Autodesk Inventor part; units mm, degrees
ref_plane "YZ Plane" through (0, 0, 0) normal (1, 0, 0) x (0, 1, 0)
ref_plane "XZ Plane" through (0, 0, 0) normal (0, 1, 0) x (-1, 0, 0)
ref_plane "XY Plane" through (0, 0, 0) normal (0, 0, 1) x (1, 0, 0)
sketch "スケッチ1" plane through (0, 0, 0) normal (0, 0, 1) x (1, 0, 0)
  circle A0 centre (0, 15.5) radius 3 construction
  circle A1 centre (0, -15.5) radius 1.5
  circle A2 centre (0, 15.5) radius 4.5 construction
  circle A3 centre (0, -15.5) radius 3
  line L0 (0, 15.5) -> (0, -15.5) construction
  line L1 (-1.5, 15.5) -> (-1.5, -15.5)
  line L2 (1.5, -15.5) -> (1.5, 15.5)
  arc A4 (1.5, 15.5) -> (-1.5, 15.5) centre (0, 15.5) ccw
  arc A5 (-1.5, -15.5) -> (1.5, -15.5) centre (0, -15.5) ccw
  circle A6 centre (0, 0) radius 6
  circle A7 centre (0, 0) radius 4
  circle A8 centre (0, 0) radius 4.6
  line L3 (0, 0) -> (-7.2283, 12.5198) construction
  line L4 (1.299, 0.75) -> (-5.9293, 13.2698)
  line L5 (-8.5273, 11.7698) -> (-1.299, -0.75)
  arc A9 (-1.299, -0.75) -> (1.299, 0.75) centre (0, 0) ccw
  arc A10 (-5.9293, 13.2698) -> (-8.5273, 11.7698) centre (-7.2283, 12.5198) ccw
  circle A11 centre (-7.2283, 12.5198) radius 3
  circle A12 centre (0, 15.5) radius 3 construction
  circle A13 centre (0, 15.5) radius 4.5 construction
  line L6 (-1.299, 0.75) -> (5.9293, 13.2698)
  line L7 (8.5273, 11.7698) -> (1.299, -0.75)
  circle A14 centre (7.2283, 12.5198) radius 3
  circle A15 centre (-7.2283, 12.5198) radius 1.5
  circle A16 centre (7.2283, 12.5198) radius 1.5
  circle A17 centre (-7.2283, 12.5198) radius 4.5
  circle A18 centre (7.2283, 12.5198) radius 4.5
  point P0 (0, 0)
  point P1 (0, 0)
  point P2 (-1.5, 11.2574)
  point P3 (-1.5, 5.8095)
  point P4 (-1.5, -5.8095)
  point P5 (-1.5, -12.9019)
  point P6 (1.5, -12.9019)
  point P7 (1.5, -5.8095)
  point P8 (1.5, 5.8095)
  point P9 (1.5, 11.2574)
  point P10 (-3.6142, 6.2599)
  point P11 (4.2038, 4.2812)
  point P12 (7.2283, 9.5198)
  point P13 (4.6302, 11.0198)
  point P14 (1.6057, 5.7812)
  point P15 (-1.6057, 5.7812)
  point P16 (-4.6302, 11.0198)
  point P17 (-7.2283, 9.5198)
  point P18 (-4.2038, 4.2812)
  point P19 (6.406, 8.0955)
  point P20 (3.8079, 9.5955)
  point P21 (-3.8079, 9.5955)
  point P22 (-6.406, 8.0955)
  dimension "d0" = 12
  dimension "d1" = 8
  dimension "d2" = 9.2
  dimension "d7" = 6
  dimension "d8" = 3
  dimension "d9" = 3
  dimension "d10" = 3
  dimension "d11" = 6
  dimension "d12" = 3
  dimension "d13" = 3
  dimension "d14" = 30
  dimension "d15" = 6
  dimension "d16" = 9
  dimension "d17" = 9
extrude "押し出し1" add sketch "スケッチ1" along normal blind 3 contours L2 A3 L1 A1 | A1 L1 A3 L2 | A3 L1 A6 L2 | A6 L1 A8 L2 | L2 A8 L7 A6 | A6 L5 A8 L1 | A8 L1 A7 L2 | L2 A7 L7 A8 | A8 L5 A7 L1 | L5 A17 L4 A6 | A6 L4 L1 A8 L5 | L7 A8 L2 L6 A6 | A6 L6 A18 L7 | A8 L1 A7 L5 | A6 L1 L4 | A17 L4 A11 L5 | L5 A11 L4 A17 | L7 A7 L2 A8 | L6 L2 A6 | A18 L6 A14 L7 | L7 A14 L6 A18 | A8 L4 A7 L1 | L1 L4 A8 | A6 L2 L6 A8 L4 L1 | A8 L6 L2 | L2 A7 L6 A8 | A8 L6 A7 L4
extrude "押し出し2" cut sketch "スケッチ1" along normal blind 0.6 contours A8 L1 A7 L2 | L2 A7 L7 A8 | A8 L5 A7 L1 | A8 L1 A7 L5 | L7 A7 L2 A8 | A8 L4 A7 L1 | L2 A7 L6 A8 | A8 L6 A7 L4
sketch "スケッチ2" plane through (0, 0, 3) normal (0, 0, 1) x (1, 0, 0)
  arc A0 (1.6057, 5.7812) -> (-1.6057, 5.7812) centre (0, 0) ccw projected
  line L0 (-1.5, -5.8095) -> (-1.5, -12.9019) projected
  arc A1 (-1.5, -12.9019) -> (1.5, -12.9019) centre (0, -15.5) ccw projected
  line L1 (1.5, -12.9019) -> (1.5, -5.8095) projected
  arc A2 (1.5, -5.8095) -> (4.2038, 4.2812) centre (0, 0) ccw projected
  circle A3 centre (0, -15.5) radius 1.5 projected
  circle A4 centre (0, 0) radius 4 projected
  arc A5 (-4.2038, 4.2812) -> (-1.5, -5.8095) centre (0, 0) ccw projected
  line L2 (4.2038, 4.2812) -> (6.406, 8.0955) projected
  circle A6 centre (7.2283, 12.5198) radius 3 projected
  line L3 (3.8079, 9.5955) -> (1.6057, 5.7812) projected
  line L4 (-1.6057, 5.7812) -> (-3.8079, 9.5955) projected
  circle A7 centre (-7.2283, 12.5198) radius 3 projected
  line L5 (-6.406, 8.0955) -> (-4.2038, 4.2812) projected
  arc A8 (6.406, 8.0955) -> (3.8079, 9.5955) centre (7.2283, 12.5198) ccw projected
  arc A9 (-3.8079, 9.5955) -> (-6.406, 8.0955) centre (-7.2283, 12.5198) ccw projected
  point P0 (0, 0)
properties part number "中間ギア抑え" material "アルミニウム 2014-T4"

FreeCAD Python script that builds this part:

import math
import FreeCAD as App
import Part
import Sketcher
from FreeCAD import Vector
Q = App.Units.Quantity

doc = App.newDocument("Part")
body = doc.addObject("PartDesign::Body", "Body")

sketch1 = doc.addObject("Sketcher::SketchObject", "Sketch")
body.addObject(sketch1)
sketch1.AttachmentSupport = (doc.XY_Plane, [""])
sketch1.MapMode = "FlatFace"
sketch1.addGeometry(Part.LineSegment(Vector(1.5, -12.9, 0), Vector(1.5, -5.8, 0)), False)
sketch1.addGeometry(Part.ArcOfCircle(Part.Circle(Vector(0, 0, 0), Vector(0, 0, 1), 6), math.radians(-76), math.radians(46)), False)
sketch1.addGeometry(Part.LineSegment(Vector(4.2, 4.3, 0), Vector(6.4, 8.1, 0)), False)
sketch1.addGeometry(Part.ArcOfCircle(Part.Circle(Vector(7.2, 12.5, 0), Vector(0, 0, 1), 4.5), math.radians(-101), math.radians(221)), False)
sketch1.addGeometry(Part.LineSegment(Vector(3.8, 9.6, 0), Vector(1.6, 5.8, 0)), False)
sketch1.addGeometry(Part.ArcOfCircle(Part.Circle(Vector(0, 0, 0), Vector(0, 0, 1), 6), math.radians(74), math.radians(106)), False)
sketch1.addGeometry(Part.LineSegment(Vector(-1.6, 5.8, 0), Vector(-3.8, 9.6, 0)), False)
sketch1.addGeometry(Part.ArcOfCircle(Part.Circle(Vector(-7.2, 12.5, 0), Vector(0, 0, 1), 4.5), math.radians(-41), math.radians(281)), False)
sketch1.addGeometry(Part.LineSegment(Vector(-6.4, 8.1, 0), Vector(-4.2, 4.3, 0)), False)
sketch1.addGeometry(Part.ArcOfCircle(Part.Circle(Vector(0, 0, 0), Vector(0, 0, 1), 6), math.radians(134), math.radians(256)), False)
sketch1.addGeometry(Part.LineSegment(Vector(-1.5, -5.8, 0), Vector(-1.5, -12.9, 0)), False)
sketch1.addGeometry(Part.ArcOfCircle(Part.Circle(Vector(0, -15.5, 0), Vector(0, 0, 1), 3), math.radians(120), math.radians(420)), False)
sketch1.addGeometry(Part.Circle(Vector(0, -15.5, 0), Vector(0, 0, 1), 1.5), False)
sketch1.addGeometry(Part.Circle(Vector(0, 0, 0), Vector(0, 0, 1), 4), False)
sketch1.addGeometry(Part.Circle(Vector(7.2, 12.5, 0), Vector(0, 0, 1), 3), False)
sketch1.addGeometry(Part.Circle(Vector(-7.2, 12.5, 0), Vector(0, 0, 1), 3), False)
sketch1.addConstraint(Sketcher.Constraint("Coincident", 0, 2, 1, 1))
sketch1.addConstraint(Sketcher.Constraint("Coincident", 1, 2, 2, 1))
sketch1.addConstraint(Sketcher.Constraint("Coincident", 2, 2, 3, 1))
sketch1.addConstraint(Sketcher.Constraint("Coincident", 3, 2, 4, 1))
sketch1.addConstraint(Sketcher.Constraint("Coincident", 4, 2, 5, 1))
sketch1.addConstraint(Sketcher.Constraint("Coincident", 5, 2, 6, 1))
sketch1.addConstraint(Sketcher.Constraint("Coincident", 6, 2, 7, 1))
sketch1.addConstraint(Sketcher.Constraint("Coincident", 7, 2, 8, 1))
sketch1.addConstraint(Sketcher.Constraint("Coincident", 8, 2, 9, 1))
sketch1.addConstraint(Sketcher.Constraint("Coincident", 9, 2, 10, 1))
sketch1.addConstraint(Sketcher.Constraint("Coincident", 10, 2, 11, 1))
sketch1.addConstraint(Sketcher.Constraint("Coincident", 11, 2, 0, 1))
sketch1.addConstraint(Sketcher.Constraint("Vertical", 0))
sketch1.addConstraint(Sketcher.Constraint("Vertical", 10))
sketch1.addConstraint(Sketcher.Constraint("Coincident", 1, 3, -1, 1))
sketch1.addConstraint(Sketcher.Constraint("Coincident", 5, 3, -1, 1))
sketch1.addConstraint(Sketcher.Constraint("Coincident", 9, 3, -1, 1))
sketch1.addConstraint(Sketcher.Constraint("Coincident", 13, 3, -1, 1))
sketch1.addConstraint(Sketcher.Constraint("Coincident", 12, 3, 11, 3))
sketch1.addConstraint(Sketcher.Constraint("Coincident", 14, 3, 3, 3))
sketch1.addConstraint(Sketcher.Constraint("Coincident", 15, 3, 7, 3))
sketch1.addConstraint(Sketcher.Constraint("Equal", 1, 5))
sketch1.addConstraint(Sketcher.Constraint("Equal", 3, 7))
sketch1.addConstraint(Sketcher.Constraint("Equal", 5, 9))
sketch1.addConstraint(Sketcher.Constraint("Equal", 11, 14))
sketch1.addConstraint(Sketcher.Constraint("Equal", 14, 15))
sketch1.addConstraint(Sketcher.Constraint("Symmetric", 3, 3, 7, 3, -2))
sketch1.addConstraint(Sketcher.Constraint("Symmetric", 10, 2, 11, 2, -2))
sketch1.addConstraint(Sketcher.Constraint("Parallel", 2, 4))
sketch1.addConstraint(Sketcher.Constraint("Parallel", 6, 8))
sketch1.addConstraint(Sketcher.Constraint("Horizontal", 4, 2, 5, 2))
sketch1.addConstraint(Sketcher.Constraint("Horizontal", 3, 2, 6, 2))
sketch1.addConstraint(Sketcher.Constraint("Horizontal", 2, 2, 7, 2))
sketch1.addConstraint(Sketcher.Constraint("Equal", 2, 4))
sketch1.addConstraint(Sketcher.Constraint("Diameter", 12, 3.0))
sketch1.addConstraint(Sketcher.Constraint("Diameter", 13, 8.0))
sketch1.addConstraint(Sketcher.Constraint("Diameter", 14, 6.0))
sketch1.addConstraint(Sketcher.Constraint("Radius", 1, 6.0))
sketch1.addConstraint(Sketcher.Constraint("Radius", 3, 4.5))
sketch1.addConstraint(Sketcher.Constraint("DistanceX", 9, 2, 0, 2, 3.0))
sketch1.addConstraint(Sketcher.Constraint("Angle", 2, Q("60 deg")))
sketch1.addConstraint(Sketcher.Constraint("DistanceY", 11, 3, -1, 1, 15.5))
sketch1.addConstraint(Sketcher.Constraint("DistanceY", 2, 2, 3, 2, 1.5))
sketch1.addConstraint(Sketcher.Constraint("DistanceX", -1, 1, 2, 2, 6.406))
sketch1.addConstraint(Sketcher.Constraint("DistanceX", -1, 1, 3, 2, 3.808))
pad1 = doc.addObject("PartDesign::Pad", "Pad")
body.addObject(pad1)
pad1.Profile = sketch1
pad1.Length = 3

sketch2 = doc.addObject("Sketcher::SketchObject", "Sketch001")
body.addObject(sketch2)
sketch2.AttachmentSupport = (doc.XY_Plane, [""])
sketch2.MapMode = "FlatFace"
sketch2.addGeometry(Part.Circle(Vector(0, 0, 0), Vector(0, 0, 1), 4.6), False)
sketch2.addGeometry(Part.Circle(Vector(0, 0, 0), Vector(0, 0, 1), 4), False)
sketch2.addConstraint(Sketcher.Constraint("Coincident", 0, 3, -1, 1))
sketch2.addConstraint(Sketcher.Constraint("Coincident", 1, 3, -1, 1))
sketch2.addConstraint(Sketcher.Constraint("Diameter", 1, 8.0))
sketch2.addConstraint(Sketcher.Constraint("Diameter", 0, 9.2))
pocket1 = doc.addObject("PartDesign::Pocket", "Pocket")
body.addObject(pocket1)
pocket1.Profile = sketch2
pocket1.Length = 0.6
pocket1.Reversed = True

doc.recompute()
